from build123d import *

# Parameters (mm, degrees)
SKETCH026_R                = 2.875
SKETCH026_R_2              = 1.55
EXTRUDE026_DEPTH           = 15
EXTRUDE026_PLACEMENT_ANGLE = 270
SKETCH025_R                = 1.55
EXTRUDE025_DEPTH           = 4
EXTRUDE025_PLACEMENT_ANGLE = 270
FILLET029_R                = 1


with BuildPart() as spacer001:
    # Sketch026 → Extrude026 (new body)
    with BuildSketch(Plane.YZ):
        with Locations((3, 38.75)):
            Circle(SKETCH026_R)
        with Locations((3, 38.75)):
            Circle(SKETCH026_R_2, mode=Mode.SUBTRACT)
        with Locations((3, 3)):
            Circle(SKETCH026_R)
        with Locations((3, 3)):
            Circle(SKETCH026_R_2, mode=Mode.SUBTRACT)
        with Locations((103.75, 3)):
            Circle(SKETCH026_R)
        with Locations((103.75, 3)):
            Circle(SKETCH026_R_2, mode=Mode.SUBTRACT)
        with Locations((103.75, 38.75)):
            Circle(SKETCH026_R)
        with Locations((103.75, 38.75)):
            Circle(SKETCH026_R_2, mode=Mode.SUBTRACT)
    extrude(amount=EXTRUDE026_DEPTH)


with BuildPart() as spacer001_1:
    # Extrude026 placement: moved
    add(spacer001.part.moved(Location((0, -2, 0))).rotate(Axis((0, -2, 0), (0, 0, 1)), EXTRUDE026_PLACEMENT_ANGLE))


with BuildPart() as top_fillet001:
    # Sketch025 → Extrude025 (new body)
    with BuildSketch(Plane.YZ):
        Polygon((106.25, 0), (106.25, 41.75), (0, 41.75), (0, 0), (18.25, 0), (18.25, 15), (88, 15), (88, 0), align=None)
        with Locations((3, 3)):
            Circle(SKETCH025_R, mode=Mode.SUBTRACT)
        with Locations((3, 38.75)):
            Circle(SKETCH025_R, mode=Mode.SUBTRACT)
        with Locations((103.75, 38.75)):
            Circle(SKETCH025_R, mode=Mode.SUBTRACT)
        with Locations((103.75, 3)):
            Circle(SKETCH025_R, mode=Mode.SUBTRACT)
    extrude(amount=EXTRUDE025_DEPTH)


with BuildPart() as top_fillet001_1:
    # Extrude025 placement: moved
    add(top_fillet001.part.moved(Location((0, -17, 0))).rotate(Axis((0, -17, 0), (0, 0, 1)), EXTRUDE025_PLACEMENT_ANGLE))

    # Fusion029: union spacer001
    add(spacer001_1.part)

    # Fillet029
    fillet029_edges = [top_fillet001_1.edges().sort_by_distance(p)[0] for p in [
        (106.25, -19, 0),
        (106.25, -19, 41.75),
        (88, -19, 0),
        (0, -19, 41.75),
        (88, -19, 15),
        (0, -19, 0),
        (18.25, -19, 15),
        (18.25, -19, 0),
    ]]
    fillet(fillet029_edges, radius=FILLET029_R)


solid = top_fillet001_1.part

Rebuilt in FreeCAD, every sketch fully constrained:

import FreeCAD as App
import Part
import Sketcher
from FreeCAD import Vector


def edges_at(feature, points):
    """Names of the edges that pass closest to the given points."""
    edges = feature.Shape.Edges
    near = lambda p: min(range(len(edges)), key=lambda i: edges[i].distToShape(Part.Vertex(*p))[0])
    return sorted({f"Edge{near(p) + 1}" for p in points})

doc = App.newDocument("Part")
body = doc.addObject("PartDesign::Body", "Body")
body.AllowCompound = True

sketch1 = doc.addObject("Sketcher::SketchObject", "Sketch")
body.addObject(sketch1)
sketch1.AttachmentSupport = (doc.YZ_Plane, [""])
sketch1.MapMode = "FlatFace"
sketch1.addGeometry(Part.Circle(Vector(3, 38.8, 0), Vector(0, 0, 1), 2.9), False)
sketch1.addGeometry(Part.Circle(Vector(3, 38.8, 0), Vector(0, 0, 1), 1.6), False)
sketch1.addGeometry(Part.Circle(Vector(3, 3, 0), Vector(0, 0, 1), 2.9), False)
sketch1.addGeometry(Part.Circle(Vector(3, 3, 0), Vector(0, 0, 1), 1.6), False)
sketch1.addGeometry(Part.Circle(Vector(103.8, 3, 0), Vector(0, 0, 1), 2.9), False)
sketch1.addGeometry(Part.Circle(Vector(103.8, 3, 0), Vector(0, 0, 1), 1.6), False)
sketch1.addGeometry(Part.Circle(Vector(103.8, 38.8, 0), Vector(0, 0, 1), 2.9), False)
sketch1.addGeometry(Part.Circle(Vector(103.8, 38.8, 0), Vector(0, 0, 1), 1.6), False)
sketch1.addConstraint(Sketcher.Constraint("Coincident", 1, 3, 0, 3))
sketch1.addConstraint(Sketcher.Constraint("Coincident", 3, 3, 2, 3))
sketch1.addConstraint(Sketcher.Constraint("Coincident", 5, 3, 4, 3))
sketch1.addConstraint(Sketcher.Constraint("Coincident", 7, 3, 6, 3))
sketch1.addConstraint(Sketcher.Constraint("Equal", 0, 2))
sketch1.addConstraint(Sketcher.Constraint("Equal", 1, 3))
sketch1.addConstraint(Sketcher.Constraint("Equal", 2, 4))
sketch1.addConstraint(Sketcher.Constraint("Equal", 3, 5))
sketch1.addConstraint(Sketcher.Constraint("Equal", 4, 6))
sketch1.addConstraint(Sketcher.Constraint("Equal", 5, 7))
sketch1.addConstraint(Sketcher.Constraint("Horizontal", 3, 3, 4, 3))
sketch1.addConstraint(Sketcher.Constraint("Horizontal", 1, 3, 6, 3))
sketch1.addConstraint(Sketcher.Constraint("Vertical", 1, 3, 2, 3))
sketch1.addConstraint(Sketcher.Constraint("Vertical", 5, 3, 6, 3))
sketch1.addConstraint(Sketcher.Constraint("Diameter", 1, 3.1))
sketch1.addConstraint(Sketcher.Constraint("Diameter", 0, 5.75))
sketch1.addConstraint(Sketcher.Constraint("DistanceX", -1, 1, 0, 3, 3.0))
sketch1.addConstraint(Sketcher.Constraint("DistanceY", -1, 1, 2, 3, 3.0))
sketch1.addConstraint(Sketcher.Constraint("DistanceY", -1, 1, 0, 3, 38.75))
sketch1.addConstraint(Sketcher.Constraint("DistanceX", -1, 1, 4, 3, 103.75))
pad1 = doc.addObject("PartDesign::Pad", "Pad")
body.addObject(pad1)
pad1.Profile = sketch1
pad1.Length = 15
body2 = doc.addObject("PartDesign::Body", "Body001")
body2.AllowCompound = True
doc.recompute()

body.Placement = App.Placement(Vector(0, -2, 0), App.Rotation(Vector(0, 0, 1), 270))
boolean = doc.addObject("PartDesign::Boolean", "Boolean")
body2.addObject(boolean)
boolean.Type = "Fuse"
boolean.addObjects([body])
body3 = doc.addObject("PartDesign::Body", "Body002")

sketch2 = doc.addObject("Sketcher::SketchObject", "Sketch001")
body3.addObject(sketch2)
sketch2.AttachmentSupport = (doc.getObject("YZ_Plane002"), [""])
sketch2.MapMode = "FlatFace"
sketch2.addGeometry(Part.LineSegment(Vector(106.2, 0, 0), Vector(106.2, 41.8, 0)), False)
sketch2.addGeometry(Part.LineSegment(Vector(106.2, 41.8, 0), Vector(0, 41.8, 0)), False)
sketch2.addGeometry(Part.LineSegment(Vector(0, 41.8, 0), Vector(0, 0, 0)), False)
sketch2.addGeometry(Part.LineSegment(Vector(0, 0, 0), Vector(18.2, 0, 0)), False)
sketch2.addGeometry(Part.LineSegment(Vector(18.2, 0, 0), Vector(18.2, 15, 0)), False)
sketch2.addGeometry(Part.LineSegment(Vector(18.2, 15, 0), Vector(88, 15, 0)), False)
sketch2.addGeometry(Part.LineSegment(Vector(88, 15, 0), Vector(88, 0, 0)), False)
sketch2.addGeometry(Part.LineSegment(Vector(88, 0, 0), Vector(106.2, 0, 0)), False)
sketch2.addGeometry(Part.Circle(Vector(3, 3, 0), Vector(0, 0, 1), 1.6), False)
sketch2.addGeometry(Part.Circle(Vector(103.8, 3, 0), Vector(0, 0, 1), 1.6), False)
sketch2.addGeometry(Part.Circle(Vector(3, 38.8, 0), Vector(0, 0, 1), 1.6), False)
sketch2.addGeometry(Part.Circle(Vector(103.8, 38.8, 0), Vector(0, 0, 1), 1.6), False)
sketch2.addConstraint(Sketcher.Constraint("Coincident", 0, 2, 1, 1))
sketch2.addConstraint(Sketcher.Constraint("Coincident", 1, 2, 2, 1))
sketch2.addConstraint(Sketcher.Constraint("Coincident", 2, 2, 3, 1))
sketch2.addConstraint(Sketcher.Constraint("Coincident", 3, 2, 4, 1))
sketch2.addConstraint(Sketcher.Constraint("Coincident", 4, 2, 5, 1))
sketch2.addConstraint(Sketcher.Constraint("Coincident", 5, 2, 6, 1))
sketch2.addConstraint(Sketcher.Constraint("Coincident", 6, 2, 7, 1))
sketch2.addConstraint(Sketcher.Constraint("Coincident", 7, 2, 0, 1))
sketch2.addConstraint(Sketcher.Constraint("Vertical", 0))
sketch2.addConstraint(Sketcher.Constraint("Horizontal", 1))
sketch2.addConstraint(Sketcher.Constraint("Vertical", 2))
sketch2.addConstraint(Sketcher.Constraint("Horizontal", 3))
sketch2.addConstraint(Sketcher.Constraint("Vertical", 4))
sketch2.addConstraint(Sketcher.Constraint("Horizontal", 5))
sketch2.addConstraint(Sketcher.Constraint("Vertical", 6))
sketch2.addConstraint(Sketcher.Constraint("Horizontal", 7))
sketch2.addConstraint(Sketcher.Constraint("Coincident", 2, 2, -1, 1))
sketch2.addConstraint(Sketcher.Constraint("Equal", 8, 9))
sketch2.addConstraint(Sketcher.Constraint("Equal", 9, 10))
sketch2.addConstraint(Sketcher.Constraint("Equal", 10, 11))
sketch2.addConstraint(Sketcher.Constraint("PointOnObject", 6, 2, -1))
sketch2.addConstraint(Sketcher.Constraint("Horizontal", 8, 3, 9, 3))
sketch2.addConstraint(Sketcher.Constraint("Horizontal", 10, 3, 11, 3))
sketch2.addConstraint(Sketcher.Constraint("Vertical", 8, 3, 10, 3))
sketch2.addConstraint(Sketcher.Constraint("Vertical", 9, 3, 11, 3))
sketch2.addConstraint(Sketcher.Constraint("Equal", 3, 7))
sketch2.addConstraint(Sketcher.Constraint("Diameter", 8, 3.1))
sketch2.addConstraint(Sketcher.Constraint("DistanceY", 4, 1, 4, 2, 15.0))
sketch2.addConstraint(Sketcher.Constraint("DistanceX", -1, 1, 8, 3, 3.0))
sketch2.addConstraint(Sketcher.Constraint("DistanceY", -1, 1, 8, 3, 3.0))
sketch2.addConstraint(Sketcher.Constraint("DistanceX", -1, 1, 5, 2, 88.0))
sketch2.addConstraint(Sketcher.Constraint("DistanceY", 11, 3, 0, 2, 3.0))
sketch2.addConstraint(Sketcher.Constraint("DistanceX", 1, 2, 1, 1, 106.25))
sketch2.addConstraint(Sketcher.Constraint("DistanceY", 0, 1, 0, 2, 41.75))
sketch2.addConstraint(Sketcher.Constraint("DistanceX", 11, 3, 0, 2, 2.5))
pad2 = doc.addObject("PartDesign::Pad", "Pad001")
body3.addObject(pad2)
pad2.Profile = sketch2
pad2.Length = 4
body4 = doc.addObject("PartDesign::Body", "Body003")
doc.recompute()

body3.Placement = App.Placement(Vector(0, -17, 0), App.Rotation(Vector(0, 0, 1), 270))
boolean2 = doc.addObject("PartDesign::Boolean", "Boolean001")
body4.addObject(boolean2)
boolean2.Type = "Fuse"
boolean2.addObjects([body3])
doc.recompute()

boolean3 = doc.addObject("PartDesign::Boolean", "Boolean002")
body4.addObject(boolean3)
boolean3.Type = "Fuse"
boolean3.addObjects([body2])
doc.recompute()

fillet = doc.addObject("PartDesign::Fillet", "Fillet")
body4.addObject(fillet)
fillet.Base = (boolean3, edges_at(boolean3, [
    (106.25, -19, 0),
    (106.25, -19, 41.75),
    (88, -19, 0),
    (0, -19, 41.75),
    (88, -19, 15),
    (0, -19, 0),
    (18.25, -19, 15),
    (18.25, -19, 0),
]))
fillet.Radius = 1

doc.recompute()
